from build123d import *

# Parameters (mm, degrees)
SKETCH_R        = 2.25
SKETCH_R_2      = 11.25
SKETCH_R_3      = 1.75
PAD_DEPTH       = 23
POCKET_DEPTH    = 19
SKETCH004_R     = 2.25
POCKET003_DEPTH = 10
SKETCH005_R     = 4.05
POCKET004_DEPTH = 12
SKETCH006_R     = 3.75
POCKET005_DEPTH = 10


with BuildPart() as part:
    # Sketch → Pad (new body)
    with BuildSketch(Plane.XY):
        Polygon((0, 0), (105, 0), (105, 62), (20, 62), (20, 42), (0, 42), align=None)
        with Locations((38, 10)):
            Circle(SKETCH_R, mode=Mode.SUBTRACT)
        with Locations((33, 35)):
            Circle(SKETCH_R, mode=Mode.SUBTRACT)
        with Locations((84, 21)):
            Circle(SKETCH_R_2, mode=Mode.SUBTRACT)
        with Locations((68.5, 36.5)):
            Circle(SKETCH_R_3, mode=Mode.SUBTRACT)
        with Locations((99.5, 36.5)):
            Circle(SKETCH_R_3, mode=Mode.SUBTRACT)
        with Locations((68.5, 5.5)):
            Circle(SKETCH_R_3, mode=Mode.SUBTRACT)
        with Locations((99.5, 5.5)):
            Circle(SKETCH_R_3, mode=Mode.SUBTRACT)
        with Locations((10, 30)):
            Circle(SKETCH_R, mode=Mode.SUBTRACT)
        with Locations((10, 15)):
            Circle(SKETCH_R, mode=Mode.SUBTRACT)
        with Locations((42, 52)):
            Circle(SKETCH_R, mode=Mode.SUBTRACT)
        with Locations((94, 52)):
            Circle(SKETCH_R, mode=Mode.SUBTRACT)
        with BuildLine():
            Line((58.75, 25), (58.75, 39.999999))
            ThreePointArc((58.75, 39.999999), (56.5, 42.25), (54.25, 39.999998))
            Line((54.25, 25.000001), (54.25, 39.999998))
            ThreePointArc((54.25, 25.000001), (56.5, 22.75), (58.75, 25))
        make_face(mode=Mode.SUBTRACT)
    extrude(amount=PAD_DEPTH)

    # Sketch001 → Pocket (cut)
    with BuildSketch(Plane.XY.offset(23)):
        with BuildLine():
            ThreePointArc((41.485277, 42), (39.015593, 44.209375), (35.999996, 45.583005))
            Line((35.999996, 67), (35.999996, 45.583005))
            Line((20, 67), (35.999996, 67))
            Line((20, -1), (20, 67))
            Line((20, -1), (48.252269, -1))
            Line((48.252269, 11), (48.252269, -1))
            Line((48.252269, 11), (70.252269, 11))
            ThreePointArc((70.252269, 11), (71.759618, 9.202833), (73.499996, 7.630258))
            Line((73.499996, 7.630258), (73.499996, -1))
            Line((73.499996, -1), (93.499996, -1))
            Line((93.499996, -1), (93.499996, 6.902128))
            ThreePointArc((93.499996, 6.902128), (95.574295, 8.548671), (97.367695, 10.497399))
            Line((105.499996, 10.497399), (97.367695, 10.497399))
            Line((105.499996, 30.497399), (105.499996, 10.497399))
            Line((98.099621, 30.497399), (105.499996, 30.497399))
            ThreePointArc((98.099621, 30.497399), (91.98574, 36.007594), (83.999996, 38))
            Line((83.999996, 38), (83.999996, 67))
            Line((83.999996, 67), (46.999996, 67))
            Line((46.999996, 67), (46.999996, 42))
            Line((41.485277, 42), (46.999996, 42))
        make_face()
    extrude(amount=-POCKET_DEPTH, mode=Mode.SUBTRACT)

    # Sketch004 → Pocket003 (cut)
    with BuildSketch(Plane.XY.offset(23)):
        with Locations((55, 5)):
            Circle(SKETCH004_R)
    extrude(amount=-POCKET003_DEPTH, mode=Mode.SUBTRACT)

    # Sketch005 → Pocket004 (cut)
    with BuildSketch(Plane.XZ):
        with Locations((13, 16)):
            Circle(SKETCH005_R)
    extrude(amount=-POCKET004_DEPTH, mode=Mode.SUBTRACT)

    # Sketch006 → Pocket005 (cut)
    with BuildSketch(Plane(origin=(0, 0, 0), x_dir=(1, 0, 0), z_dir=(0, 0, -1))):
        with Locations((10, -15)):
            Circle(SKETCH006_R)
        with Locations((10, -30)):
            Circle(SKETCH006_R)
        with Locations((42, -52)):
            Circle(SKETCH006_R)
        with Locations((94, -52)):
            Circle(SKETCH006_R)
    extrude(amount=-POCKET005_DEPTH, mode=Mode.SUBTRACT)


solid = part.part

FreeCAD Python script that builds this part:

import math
import FreeCAD as App
import Part
import Sketcher

V = App.Vector
Q = App.Units.Quantity

doc = App.newDocument("Part")
params = doc.addObject("Spreadsheet::Sheet", "Params")
for row, (alias, value) in enumerate([
    ("sketch1_diameter", "4.5 mm"),
    ("sketch1_diameter2", "3.5 mm"),
    ("sketch1_diameter3", "22.5 mm"),
    ("sketch1_width", "105 mm"),
    ("sketch1_width2", "85 mm"),
    ("pad1_length", "23 mm"),
    ("sketch2_radius", "10.999999 mm"),
    ("sketch2_width", "22 mm"),
    ("sketch2_width2", "20 mm"),
    ("sketch2_width3", "37 mm"),
    ("sketch2_height", "68 mm"),
    ("pocket1_length", "19 mm"),
    ("sketch3_diameter", "4.5 mm"),
    ("pocket2_length", "10 mm"),
    ("sketch4_diameter", "8.1 mm"),
    ("pocket3_length", "12 mm"),
    ("sketch5_diameter", "7.5 mm"),
    ("pocket4_length", "10 mm"),
], start=1):
    params.set(f"A{row}", alias)
    params.set(f"B{row}", "=" + value)
    params.setAlias(f"B{row}", alias)

body = doc.addObject("PartDesign::Body", "Body")

sketch1 = doc.addObject("Sketcher::SketchObject", "Sketch")
body.addObject(sketch1)
sketch1.AttachmentSupport = (doc.XY_Plane, [""])
sketch1.MapMode = "FlatFace"
sketch1.addGeometry([
    Part.LineSegment(V(0, 0, 0), V(105, 0, 0)),
    Part.LineSegment(V(105, 0, 0), V(105, 62, 0)),
    Part.LineSegment(V(105, 62, 0), V(20, 62, 0)),
    Part.LineSegment(V(20, 62, 0), V(20, 42, 0)),
    Part.LineSegment(V(20, 42, 0), V(0, 42, 0)),
    Part.LineSegment(V(0, 42, 0), V(0, 0, 0)),
    Part.Circle(V(10, 15, 0), V(0, 0, 1), 2.2),
    Part.Circle(V(38, 10, 0), V(0, 0, 1), 2.2),
    Part.Circle(V(68.5, 5.5, 0), V(0, 0, 1), 1.8),
    Part.Circle(V(99.5, 5.5, 0), V(0, 0, 1), 1.8),
    Part.Circle(V(84, 21, 0), V(0, 0, 1), 11.2),
    Part.Circle(V(10, 30, 0), V(0, 0, 1), 2.2),
    Part.Circle(V(33, 35, 0), V(0, 0, 1), 2.2),
    Part.Circle(V(42, 52, 0), V(0, 0, 1), 2.2),
    Part.LineSegment(V(58.8, 40, 0), V(58.8, 25, 0)),
    Part.ArcOfCircle(Part.Circle(V(56.5, 25, 0), V(0, 0, 1), 2.2), math.radians(180), math.radians(360)),
    Part.LineSegment(V(54.2, 25, 0), V(54.2, 40, 0)),
    Part.ArcOfCircle(Part.Circle(V(56.5, 40, 0), V(0, 0, 1), 2.2), math.radians(0), math.radians(180)),
    Part.Circle(V(68.5, 36.5, 0), V(0, 0, 1), 1.8),
    Part.Circle(V(99.5, 36.5, 0), V(0, 0, 1), 1.8),
    Part.Circle(V(94, 52, 0), V(0, 0, 1), 2.2),
], False)
sketch1.addConstraint([
    Sketcher.Constraint("Coincident", 0, 2, 1, 1),
    Sketcher.Constraint("Coincident", 1, 2, 2, 1),
    Sketcher.Constraint("Coincident", 2, 2, 3, 1),
    Sketcher.Constraint("Coincident", 3, 2, 4, 1),
    Sketcher.Constraint("Coincident", 4, 2, 5, 1),
    Sketcher.Constraint("Coincident", 5, 2, 0, 1),
    Sketcher.Constraint("Tangent", 14, 2, 15, 2),
    Sketcher.Constraint("Tangent", 15, 1, 16, 1),
    Sketcher.Constraint("Tangent", 16, 2, 17, 2),
    Sketcher.Constraint("Tangent", 17, 1, 14, 1),
    Sketcher.Constraint("Horizontal", 0),
    Sketcher.Constraint("Vertical", 1),
    Sketcher.Constraint("Horizontal", 2),
    Sketcher.Constraint("Vertical", 3),
    Sketcher.Constraint("Horizontal", 4),
    Sketcher.Constraint("Vertical", 5),
    Sketcher.Constraint("Vertical", 14),
    Sketcher.Constraint("Vertical", 16),
    Sketcher.Constraint("Coincident", 5, 2, -1, 1),
    Sketcher.Constraint("Equal", 6, 7),
    Sketcher.Constraint("Equal", 8, 9),
    Sketcher.Constraint("Equal", 7, 11),
    Sketcher.Constraint("Equal", 11, 12),
    Sketcher.Constraint("Equal", 12, 13),
    Sketcher.Constraint("Equal", 13, 15),
    Sketcher.Constraint("Equal", 9, 18),
    Sketcher.Constraint("Equal", 18, 19),
    Sketcher.Constraint("Equal", 17, 20),
    Sketcher.Constraint("Horizontal", 8, 3, 9, 3),
    Sketcher.Constraint("Horizontal", 18, 3, 19, 3),
    Sketcher.Constraint("Horizontal", 13, 3, 20, 3),
    Sketcher.Constraint("Vertical", 6, 3, 11, 3),
    Sketcher.Constraint("Vertical", 8, 3, 18, 3),
    Sketcher.Constraint("Vertical", 9, 3, 19, 3),
    Sketcher.Constraint("Equal", 4, 3),
    Sketcher.Constraint("Diameter", 6, Q("4.5 mm")),
    Sketcher.Constraint("Diameter", 8, Q("3.5 mm")),
    Sketcher.Constraint("Diameter", 10, Q("22.5 mm")),
    Sketcher.Constraint("DistanceX", 0, 1, 0, 2, Q("105 mm")),
    Sketcher.Constraint("DistanceX", 2, 2, 2, 1, Q("85 mm")),
    Sketcher.Constraint("DistanceY", 1, 1, 1, 2, Q("62 mm")),
    Sketcher.Constraint("DistanceY", 14, 2, 14, 1, Q("14.999999 mm")),
    Sketcher.Constraint("DistanceX", -1, 1, 6, 3, Q("10 mm")),
    Sketcher.Constraint("DistanceY", -1, 1, 6, 3, Q("15 mm")),
    Sketcher.Constraint("DistanceX", -1, 1, 7, 3, Q("38 mm")),
    Sketcher.Constraint("DistanceY", -1, 1, 7, 3, Q("10 mm")),
    Sketcher.Constraint("DistanceX", -1, 1, 10, 3, Q("84 mm")),
    Sketcher.Constraint("DistanceY", -1, 1, 10, 3, Q("21 mm")),
    Sketcher.Constraint("DistanceY", -1, 1, 11, 3, Q("30 mm")),
    Sketcher.Constraint("DistanceX", -1, 1, 12, 3, Q("33 mm")),
    Sketcher.Constraint("DistanceY", -1, 1, 12, 3, Q("35 mm")),
    Sketcher.Constraint("DistanceX", -1, 1, 13, 3, Q("42 mm")),
    Sketcher.Constraint("DistanceY", -1, 1, 13, 3, Q("52 mm")),
    Sketcher.Constraint("DistanceY", -1, 1, 15, 3, Q("25 mm")),
    Sketcher.Constraint("DistanceX", -1, 1, 20, 3, Q("94 mm")),
    Sketcher.Constraint("DistanceX", 8, 3, 9, 3, Q("31 mm")),
    Sketcher.Constraint("DistanceX", 15, 3, 8, 3, Q("12 mm")),
    Sketcher.Constraint("DistanceY", 8, 3, 18, 3, Q("31 mm")),
    Sketcher.Constraint("DistanceX", -1, 1, 8, 3, Q("68.5 mm")),
    Sketcher.Constraint("DistanceY", -1, 1, 8, 3, Q("5.5 mm")),
])
sketch1.setExpression("Constraints[35]", "Params.sketch1_diameter")
sketch1.setExpression("Constraints[36]", "Params.sketch1_diameter2")
sketch1.setExpression("Constraints[37]", "Params.sketch1_diameter3")
sketch1.setExpression("Constraints[38]", "Params.sketch1_width")
sketch1.setExpression("Constraints[39]", "Params.sketch1_width2")
pad1 = doc.addObject("PartDesign::Pad", "Pad")
body.addObject(pad1)
pad1.Profile = sketch1
pad1.setExpression("Length", "Params.pad1_length")

sketch2 = doc.addObject("Sketcher::SketchObject", "Sketch001")
body.addObject(sketch2)
sketch2.AttachmentSupport = (doc.XY_Plane, [""])
sketch2.MapMode = "FlatFace"
sketch2.AttachmentOffset = App.Placement(V(0, 0, 23), App.Rotation())
sketch2.addGeometry([
    Part.ArcOfCircle(Part.Circle(V(33, 35, 0), V(0, 0, 1), 11), math.radians(40), math.radians(74)),
    Part.LineSegment(V(36, 45.6, 0), V(36, 67, 0)),
    Part.LineSegment(V(36, 67, 0), V(20, 67, 0)),
    Part.LineSegment(V(20, 67, 0), V(20, -1, 0)),
    Part.LineSegment(V(20, -1, 0), V(48.3, -1, 0)),
    Part.LineSegment(V(48.3, -1, 0), V(48.3, 11, 0)),
    Part.LineSegment(V(48.3, 11, 0), V(70.3, 11, 0)),
    Part.ArcOfCircle(Part.Circle(V(84, 21, 0), V(0, 0, 1), 17), math.radians(-143.97), math.radians(-128.14)),
    Part.LineSegment(V(73.5, 7.6, 0), V(73.5, -1, 0)),
    Part.LineSegment(V(73.5, -1, 0), V(93.5, -1, 0)),
    Part.LineSegment(V(93.5, -1, 0), V(93.5, 6.9, 0)),
    Part.ArcOfCircle(Part.Circle(V(84, 21, 0), V(0, 0, 1), 17), math.radians(-56.03), math.radians(-38.16)),
    Part.LineSegment(V(97.4, 10.5, 0), V(105.5, 10.5, 0)),
    Part.LineSegment(V(105.5, 10.5, 0), V(105.5, 30.5, 0)),
    Part.LineSegment(V(105.5, 30.5, 0), V(98.1, 30.5, 0)),
    Part.ArcOfCircle(Part.Circle(V(84, 21, 0), V(0, 0, 1), 17), math.radians(34), math.radians(90)),
    Part.LineSegment(V(84, 38, 0), V(84, 67, 0)),
    Part.LineSegment(V(84, 67, 0), V(47, 67, 0)),
    Part.LineSegment(V(47, 67, 0), V(47, 42, 0)),
    Part.LineSegment(V(47, 42, 0), V(41.5, 42, 0)),
], False)
sketch2.addConstraint([
    Sketcher.Constraint("Coincident", 0, 2, 1, 1),
    Sketcher.Constraint("Coincident", 1, 2, 2, 1),
    Sketcher.Constraint("Coincident", 2, 2, 3, 1),
    Sketcher.Constraint("Coincident", 3, 2, 4, 1),
    Sketcher.Constraint("Coincident", 4, 2, 5, 1),
    Sketcher.Constraint("Coincident", 5, 2, 6, 1),
    Sketcher.Constraint("Coincident", 6, 2, 7, 1),
    Sketcher.Constraint("Coincident", 7, 2, 8, 1),
    Sketcher.Constraint("Coincident", 8, 2, 9, 1),
    Sketcher.Constraint("Coincident", 9, 2, 10, 1),
    Sketcher.Constraint("Coincident", 10, 2, 11, 1),
    Sketcher.Constraint("Coincident", 11, 2, 12, 1),
    Sketcher.Constraint("Coincident", 12, 2, 13, 1),
    Sketcher.Constraint("Coincident", 13, 2, 14, 1),
    Sketcher.Constraint("Coincident", 14, 2, 15, 1),
    Sketcher.Constraint("Coincident", 15, 2, 16, 1),
    Sketcher.Constraint("Coincident", 16, 2, 17, 1),
    Sketcher.Constraint("Coincident", 17, 2, 18, 1),
    Sketcher.Constraint("Coincident", 18, 2, 19, 1),
    Sketcher.Constraint("Coincident", 19, 2, 0, 1),
    Sketcher.Constraint("Vertical", 1),
    Sketcher.Constraint("Horizontal", 2),
    Sketcher.Constraint("Vertical", 3),
    Sketcher.Constraint("Horizontal", 4),
    Sketcher.Constraint("Vertical", 5),
    Sketcher.Constraint("Horizontal", 6),
    Sketcher.Constraint("Vertical", 8),
    Sketcher.Constraint("Horizontal", 9),
    Sketcher.Constraint("Vertical", 10),
    Sketcher.Constraint("Horizontal", 12),
    Sketcher.Constraint("Vertical", 13),
    Sketcher.Constraint("Horizontal", 14),
    Sketcher.Constraint("Vertical", 16),
    Sketcher.Constraint("Horizontal", 17),
    Sketcher.Constraint("Vertical", 18),
    Sketcher.Constraint("Horizontal", 19),
    Sketcher.Constraint("Coincident", 15, 3, 7, 3),
    Sketcher.Constraint("Horizontal", 4, 2, 8, 2),
    Sketcher.Constraint("Horizontal", 2, 2, 16, 2),
    Sketcher.Constraint("Equal", 9, 13),
    Sketcher.Constraint("Radius", 0, Q("10.999999 mm")),
    Sketcher.Constraint("DistanceX", 6, 1, 6, 2, Q("22 mm")),
    Sketcher.Constraint("DistanceX", 9, 1, 9, 2, Q("20 mm")),
    Sketcher.Constraint("DistanceX", 17, 2, 17, 1, Q("37 mm")),
    Sketcher.Constraint("DistanceY", 3, 2, 3, 1, Q("68 mm")),
    Sketcher.Constraint("DistanceY", 5, 1, 5, 2, Q("12 mm")),
    Sketcher.Constraint("DistanceY", 16, 1, 16, 2, Q("29 mm")),
    Sketcher.Constraint("DistanceY", 18, 2, 18, 1, Q("25 mm")),
    Sketcher.Constraint("DistanceY", -1, 1, 0, 3, Q("35.000001 mm")),
    Sketcher.Constraint("DistanceY", -1, 1, 1, 2, Q("67 mm")),
    Sketcher.Constraint("DistanceX", -1, 1, 2, 2, Q("20 mm")),
    Sketcher.Constraint("DistanceX", 0, 3, 0, 2, Q("3 mm")),
    Sketcher.Constraint("DistanceX", 10, 2, 12, 2, Q("12 mm")),
    Sketcher.Constraint("DistanceX", 1, 2, 17, 2, Q("11 mm")),
    Sketcher.Constraint("DistanceX", 15, 2, 13, 2, Q("21.5 mm")),
    Sketcher.Constraint("Radius", 7, Q("16.99999 mm")),
    Sketcher.Constraint("Radius", 11, Q("17.00002 mm")),
    Sketcher.Constraint("DistanceX", 12, 1, 12, 2, Q("8.132301 mm")),
    Sketcher.Constraint("Radius", 15, Q("17.000005 mm")),
    Sketcher.Constraint("DistanceX", 4, 1, 4, 2, Q("28.252269 mm")),
    Sketcher.Constraint("DistanceY", 8, 2, 8, 1, Q("8.630258 mm")),
    Sketcher.Constraint("DistanceY", 10, 1, 10, 2, Q("7.902128 mm")),
    Sketcher.Constraint("DistanceY", -1, 1, 11, 2, Q("10.497399 mm")),
])
sketch2.setExpression("Constraints[40]", "Params.sketch2_radius")
sketch2.setExpression("Constraints[41]", "Params.sketch2_width")
sketch2.setExpression("Constraints[42]", "Params.sketch2_width2")
sketch2.setExpression("Constraints[43]", "Params.sketch2_width3")
sketch2.setExpression("Constraints[44]", "Params.sketch2_height")
pocket1 = doc.addObject("PartDesign::Pocket", "Pocket")
body.addObject(pocket1)
pocket1.Profile = sketch2
pocket1.setExpression("Length", "Params.pocket1_length")

sketch3 = doc.addObject("Sketcher::SketchObject", "Sketch002")
body.addObject(sketch3)
sketch3.AttachmentSupport = (doc.XY_Plane, [""])
sketch3.MapMode = "FlatFace"
sketch3.AttachmentOffset = App.Placement(V(0, 0, 23), App.Rotation())
sketch3.addGeometry(Part.Circle(V(55, 5, 0), V(0, 0, 1), 2.2), False)
sketch3.addConstraint([
    Sketcher.Constraint("Diameter", 0, Q("4.5 mm")),
    Sketcher.Constraint("DistanceX", -1, 1, 0, 3, Q("55 mm")),
    Sketcher.Constraint("DistanceY", -1, 1, 0, 3, Q("5 mm")),
])
sketch3.setExpression("Constraints[0]", "Params.sketch3_diameter")
pocket2 = doc.addObject("PartDesign::Pocket", "Pocket001")
body.addObject(pocket2)
pocket2.Profile = sketch3
pocket2.setExpression("Length", "Params.pocket2_length")

sketch4 = doc.addObject("Sketcher::SketchObject", "Sketch003")
body.addObject(sketch4)
sketch4.AttachmentSupport = (doc.XZ_Plane, [""])
sketch4.MapMode = "FlatFace"
sketch4.addGeometry(Part.Circle(V(13, 16, 0), V(0, 0, 1), 4), False)
sketch4.addConstraint([
    Sketcher.Constraint("Diameter", 0, Q("8.1 mm")),
    Sketcher.Constraint("DistanceX", -1, 1, 0, 3, Q("13 mm")),
    Sketcher.Constraint("DistanceY", -1, 1, 0, 3, Q("16 mm")),
])
sketch4.setExpression("Constraints[0]", "Params.sketch4_diameter")
pocket3 = doc.addObject("PartDesign::Pocket", "Pocket002")
body.addObject(pocket3)
pocket3.Profile = sketch4
pocket3.setExpression("Length", "Params.pocket3_length")

sketch5 = doc.addObject("Sketcher::SketchObject", "Sketch004")
body.addObject(sketch5)
sketch5.AttachmentSupport = (doc.XY_Plane, [""])
sketch5.MapMode = "FlatFace"
sketch5.addGeometry([
    Part.Circle(V(10, 15, 0), V(0, 0, 1), 3.8),
    Part.Circle(V(10, 30, 0), V(0, 0, 1), 3.8),
    Part.Circle(V(42, 52, 0), V(0, 0, 1), 3.8),
    Part.Circle(V(94, 52, 0), V(0, 0, 1), 3.8),
], False)
sketch5.addConstraint([
    Sketcher.Constraint("Equal", 0, 1),
    Sketcher.Constraint("Equal", 1, 2),
    Sketcher.Constraint("Equal", 2, 3),
    Sketcher.Constraint("Horizontal", 2, 3, 3, 3),
    Sketcher.Constraint("Vertical", 0, 3, 1, 3),
    Sketcher.Constraint("Diameter", 0, Q("7.5 mm")),
    Sketcher.Constraint("DistanceX", -1, 1, 0, 3, Q("10 mm")),
    Sketcher.Constraint("DistanceY", -1, 1, 0, 3, Q("15 mm")),
    Sketcher.Constraint("DistanceY", -1, 1, 1, 3, Q("30 mm")),
    Sketcher.Constraint("DistanceX", -1, 1, 2, 3, Q("42 mm")),
    Sketcher.Constraint("DistanceY", -1, 1, 2, 3, Q("52 mm")),
    Sketcher.Constraint("DistanceX", -1, 1, 3, 3, Q("94 mm")),
])
sketch5.setExpression("Constraints[5]", "Params.sketch5_diameter")
pocket4 = doc.addObject("PartDesign::Pocket", "Pocket003")
body.addObject(pocket4)
pocket4.Profile = sketch5
pocket4.setExpression("Length", "Params.pocket4_length")
pocket4.Reversed = True

doc.recompute()
